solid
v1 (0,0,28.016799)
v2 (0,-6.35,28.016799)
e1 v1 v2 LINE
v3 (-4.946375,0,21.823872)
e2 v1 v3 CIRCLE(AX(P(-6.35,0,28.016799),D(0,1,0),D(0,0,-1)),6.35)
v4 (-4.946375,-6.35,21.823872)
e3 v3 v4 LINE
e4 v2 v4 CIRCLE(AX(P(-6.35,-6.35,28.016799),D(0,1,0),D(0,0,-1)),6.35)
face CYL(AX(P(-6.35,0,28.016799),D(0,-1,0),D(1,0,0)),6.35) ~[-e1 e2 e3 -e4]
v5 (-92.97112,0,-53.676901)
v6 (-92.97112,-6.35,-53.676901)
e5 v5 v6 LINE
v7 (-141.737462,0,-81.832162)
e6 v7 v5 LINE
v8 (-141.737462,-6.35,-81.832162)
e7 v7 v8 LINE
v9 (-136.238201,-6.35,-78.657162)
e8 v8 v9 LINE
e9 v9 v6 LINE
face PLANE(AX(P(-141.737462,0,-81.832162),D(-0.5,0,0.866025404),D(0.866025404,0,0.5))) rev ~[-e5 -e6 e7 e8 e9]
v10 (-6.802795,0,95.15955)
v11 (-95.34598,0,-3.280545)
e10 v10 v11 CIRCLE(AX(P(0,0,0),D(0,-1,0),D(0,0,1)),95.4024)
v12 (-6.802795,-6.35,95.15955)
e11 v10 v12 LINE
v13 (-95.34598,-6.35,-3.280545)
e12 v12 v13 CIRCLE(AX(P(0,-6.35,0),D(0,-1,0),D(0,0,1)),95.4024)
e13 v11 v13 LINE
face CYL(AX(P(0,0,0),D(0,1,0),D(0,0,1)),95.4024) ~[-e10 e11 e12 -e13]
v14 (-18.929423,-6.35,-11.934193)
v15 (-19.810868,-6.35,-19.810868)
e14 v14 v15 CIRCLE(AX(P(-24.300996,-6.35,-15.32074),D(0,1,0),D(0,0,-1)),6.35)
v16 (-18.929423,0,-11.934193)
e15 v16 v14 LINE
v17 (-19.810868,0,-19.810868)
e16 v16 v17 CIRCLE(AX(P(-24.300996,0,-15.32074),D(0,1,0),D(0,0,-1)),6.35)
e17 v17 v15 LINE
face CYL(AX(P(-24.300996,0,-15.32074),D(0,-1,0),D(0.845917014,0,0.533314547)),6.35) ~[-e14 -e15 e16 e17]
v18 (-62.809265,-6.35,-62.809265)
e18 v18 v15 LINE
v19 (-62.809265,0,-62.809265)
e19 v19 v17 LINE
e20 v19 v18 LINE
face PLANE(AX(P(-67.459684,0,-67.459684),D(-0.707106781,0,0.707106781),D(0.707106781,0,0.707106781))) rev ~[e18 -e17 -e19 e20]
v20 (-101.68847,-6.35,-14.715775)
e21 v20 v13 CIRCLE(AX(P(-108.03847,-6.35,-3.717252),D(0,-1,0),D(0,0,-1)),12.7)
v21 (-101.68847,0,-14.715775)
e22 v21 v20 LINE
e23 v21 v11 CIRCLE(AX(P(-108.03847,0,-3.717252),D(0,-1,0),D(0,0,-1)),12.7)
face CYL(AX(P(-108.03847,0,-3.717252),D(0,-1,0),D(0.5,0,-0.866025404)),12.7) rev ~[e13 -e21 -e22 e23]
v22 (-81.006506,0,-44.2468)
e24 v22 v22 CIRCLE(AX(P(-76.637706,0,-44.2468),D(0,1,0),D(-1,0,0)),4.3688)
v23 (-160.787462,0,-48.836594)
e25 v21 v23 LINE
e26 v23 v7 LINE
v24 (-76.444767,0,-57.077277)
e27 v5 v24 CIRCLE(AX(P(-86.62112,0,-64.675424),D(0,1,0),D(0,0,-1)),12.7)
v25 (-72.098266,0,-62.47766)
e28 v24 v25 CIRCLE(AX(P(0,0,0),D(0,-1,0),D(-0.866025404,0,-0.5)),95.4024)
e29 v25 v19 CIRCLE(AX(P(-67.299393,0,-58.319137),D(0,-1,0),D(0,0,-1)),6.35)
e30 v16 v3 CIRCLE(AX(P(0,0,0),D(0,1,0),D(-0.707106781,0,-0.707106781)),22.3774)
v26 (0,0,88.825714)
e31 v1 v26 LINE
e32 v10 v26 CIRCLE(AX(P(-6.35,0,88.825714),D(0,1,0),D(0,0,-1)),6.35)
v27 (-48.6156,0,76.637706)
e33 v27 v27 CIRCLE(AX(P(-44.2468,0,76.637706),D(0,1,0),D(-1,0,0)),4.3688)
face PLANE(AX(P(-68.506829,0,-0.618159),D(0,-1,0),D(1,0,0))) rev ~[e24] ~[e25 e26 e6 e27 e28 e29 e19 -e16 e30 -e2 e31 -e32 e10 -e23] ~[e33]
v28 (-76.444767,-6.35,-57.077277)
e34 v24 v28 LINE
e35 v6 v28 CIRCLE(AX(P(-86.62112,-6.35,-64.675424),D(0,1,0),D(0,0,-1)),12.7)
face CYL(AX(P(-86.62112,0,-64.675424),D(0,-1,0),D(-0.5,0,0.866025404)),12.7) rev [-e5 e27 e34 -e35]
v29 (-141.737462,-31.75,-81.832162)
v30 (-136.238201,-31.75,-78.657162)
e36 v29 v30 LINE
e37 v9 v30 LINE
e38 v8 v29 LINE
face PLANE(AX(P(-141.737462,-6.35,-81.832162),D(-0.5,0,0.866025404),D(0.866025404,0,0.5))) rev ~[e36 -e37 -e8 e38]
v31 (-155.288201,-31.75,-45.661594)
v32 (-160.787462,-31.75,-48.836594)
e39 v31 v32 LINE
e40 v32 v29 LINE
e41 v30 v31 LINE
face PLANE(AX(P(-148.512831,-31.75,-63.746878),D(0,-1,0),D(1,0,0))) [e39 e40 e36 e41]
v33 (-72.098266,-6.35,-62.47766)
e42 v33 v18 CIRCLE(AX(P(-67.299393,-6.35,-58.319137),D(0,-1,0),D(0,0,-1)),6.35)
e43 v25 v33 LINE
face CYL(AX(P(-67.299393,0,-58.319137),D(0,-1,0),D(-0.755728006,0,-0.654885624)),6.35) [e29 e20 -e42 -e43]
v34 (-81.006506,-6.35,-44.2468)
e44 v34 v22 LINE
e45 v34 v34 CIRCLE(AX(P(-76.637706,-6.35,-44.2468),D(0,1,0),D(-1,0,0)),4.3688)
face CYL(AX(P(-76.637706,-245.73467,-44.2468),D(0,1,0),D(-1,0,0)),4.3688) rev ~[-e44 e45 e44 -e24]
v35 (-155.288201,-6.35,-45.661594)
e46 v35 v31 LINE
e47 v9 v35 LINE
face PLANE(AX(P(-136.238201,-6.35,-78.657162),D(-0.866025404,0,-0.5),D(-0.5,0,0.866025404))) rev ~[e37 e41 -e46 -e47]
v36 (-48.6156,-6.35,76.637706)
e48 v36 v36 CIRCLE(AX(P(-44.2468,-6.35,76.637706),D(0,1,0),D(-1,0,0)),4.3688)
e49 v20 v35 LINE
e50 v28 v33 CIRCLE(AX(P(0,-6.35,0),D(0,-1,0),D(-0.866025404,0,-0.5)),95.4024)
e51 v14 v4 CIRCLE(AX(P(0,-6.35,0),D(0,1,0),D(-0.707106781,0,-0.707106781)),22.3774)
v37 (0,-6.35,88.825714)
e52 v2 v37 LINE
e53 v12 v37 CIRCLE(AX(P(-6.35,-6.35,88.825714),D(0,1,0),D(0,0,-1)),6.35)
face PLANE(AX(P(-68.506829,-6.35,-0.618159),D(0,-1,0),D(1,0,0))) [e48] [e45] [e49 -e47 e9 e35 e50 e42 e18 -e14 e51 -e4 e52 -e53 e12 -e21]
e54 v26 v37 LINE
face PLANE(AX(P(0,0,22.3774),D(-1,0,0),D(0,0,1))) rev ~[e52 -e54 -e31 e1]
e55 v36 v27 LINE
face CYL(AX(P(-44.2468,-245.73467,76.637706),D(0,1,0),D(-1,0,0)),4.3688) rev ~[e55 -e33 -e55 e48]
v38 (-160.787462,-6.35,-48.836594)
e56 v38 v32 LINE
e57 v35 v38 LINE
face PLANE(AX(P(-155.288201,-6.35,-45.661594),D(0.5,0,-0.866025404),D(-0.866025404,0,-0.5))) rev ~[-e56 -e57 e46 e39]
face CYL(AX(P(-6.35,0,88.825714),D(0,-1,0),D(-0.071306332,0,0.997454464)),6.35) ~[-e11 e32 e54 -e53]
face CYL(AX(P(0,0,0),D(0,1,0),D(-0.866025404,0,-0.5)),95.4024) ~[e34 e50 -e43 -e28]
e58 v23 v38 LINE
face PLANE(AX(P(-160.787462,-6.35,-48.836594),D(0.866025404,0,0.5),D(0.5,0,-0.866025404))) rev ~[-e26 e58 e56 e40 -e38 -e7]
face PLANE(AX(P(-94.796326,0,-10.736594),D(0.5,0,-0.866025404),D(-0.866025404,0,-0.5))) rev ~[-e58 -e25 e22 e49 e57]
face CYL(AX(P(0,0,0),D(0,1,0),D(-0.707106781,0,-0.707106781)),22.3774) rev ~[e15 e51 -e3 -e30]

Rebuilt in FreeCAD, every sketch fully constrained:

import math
import FreeCAD as App
import Part
import Sketcher
from FreeCAD import Vector
Q = App.Units.Quantity


def edges_at(feature, points):
    """Names of the edges that pass closest to the given points."""
    edges = feature.Shape.Edges
    near = lambda p: min(range(len(edges)), key=lambda i: edges[i].distToShape(Part.Vertex(*p))[0])
    return sorted({f"Edge{near(p) + 1}" for p in points})

doc = App.newDocument("Part")
body = doc.addObject("PartDesign::Body", "Body")

sketch1 = body.newObject("Sketcher::SketchObject", "Sketch")
sketch1.AttachmentSupport = (doc.getObject("XZ_Plane"), [""])
sketch1.MapMode = "FlatFace"
sketch1.addGeometry([
    Part.LineSegment(Vector(-142, -82, 0), Vector(-83, -48, 0)),
    Part.ArcOfCircle(Part.Circle(Vector(0, 0, 0), Vector(0, 0, 1), 95), math.radians(-150), math.radians(-135)),
    Part.LineSegment(Vector(-67, -67, 0), Vector(-16, -16, 0)),
    Part.ArcOfCircle(Part.Circle(Vector(0, 0, 0), Vector(0, 0, 1), 22), math.radians(90), math.radians(225)),
    Part.LineSegment(Vector(0, 22, 0), Vector(0, 95, 0)),
    Part.ArcOfCircle(Part.Circle(Vector(0, 0, 0), Vector(0, 0, 1), 95), math.radians(90), math.radians(186)),
    Part.LineSegment(Vector(-95, -11, 0), Vector(-161, -49, 0)),
    Part.LineSegment(Vector(-161, -49, 0), Vector(-142, -82, 0)),
], False)
sketch1.addConstraint([
    Sketcher.Constraint("Coincident", 0, 2, 1, 1),
    Sketcher.Constraint("Coincident", 1, 2, 2, 1),
    Sketcher.Constraint("Coincident", 2, 2, 3, 2),
    Sketcher.Constraint("Coincident", 3, 1, 4, 1),
    Sketcher.Constraint("Coincident", 4, 2, 5, 1),
    Sketcher.Constraint("Coincident", 5, 2, 6, 1),
    Sketcher.Constraint("Coincident", 6, 2, 7, 1),
    Sketcher.Constraint("Coincident", 7, 2, 0, 1),
    Sketcher.Constraint("Vertical", 4),
    Sketcher.Constraint("Coincident", 1, 3, -1, 1),
    Sketcher.Constraint("Coincident", 3, 3, -1, 1),
    Sketcher.Constraint("Coincident", 5, 3, -1, 1),
    Sketcher.Constraint("Equal", 1, 5),
    Sketcher.Constraint("PointOnObject", 3, 1, -2),
    Sketcher.Constraint("Parallel", 0, 6),
    Sketcher.Constraint("Perpendicular", 6, 7),
    Sketcher.Constraint("Distance", 6, Q("3 in")),
    Sketcher.Constraint("Angle", 0, Q("30 deg")),
    Sketcher.Constraint("Angle", 2, Q("45 deg")),
    Sketcher.Constraint("Radius", 1, Q("3.756 in")),
    Sketcher.Constraint("Radius", 3, Q("0.881 in")),
    Sketcher.Constraint("Distance", 7, Q("1.5 in")),
    Sketcher.Constraint("DistanceY", 0, 2, -1, 1, Q("1.878 in")),
    Sketcher.Constraint("DistanceX", 2, 2, -1, 1, 15.823211),
])
pad1 = body.newObject("PartDesign::Pad", "Pad")
pad1.Profile = sketch1
pad1.Length = Q("0.25 in")

sketch2 = body.newObject("Sketcher::SketchObject", "Sketch001")
sketch2.AttachmentSupport = (doc.getObject("XZ_Plane"), [""])
sketch2.MapMode = "FlatFace"
sketch2.AttachmentOffset = App.Placement(Vector(0, 0, 0.25 * 25.4), App.Rotation())
sketch2.addGeometry([
    Part.Circle(Vector(-44.2, 76.6, 0), Vector(0, 0, 1), 4.4),
    Part.Circle(Vector(-76.6, -44.2, 0), Vector(0, 0, 1), 4.4),
], False)
sketch2.addConstraint([
    Sketcher.Constraint("Equal", 0, 1),
    Sketcher.Constraint("Diameter", 0, Q("0.344 in")),
    Sketcher.Constraint("DistanceX", 0, 3, -1, 1, Q("1.742 in")),
    Sketcher.Constraint("DistanceY", 1, 3, -1, 1, Q("1.742 in")),
    Sketcher.Constraint("DistanceY", -1, 1, 0, 3, 76.637706),
    Sketcher.Constraint("DistanceX", 1, 3, -1, 1, 76.637706),
])
doc.recompute()
hole = body.newObject("PartDesign::Hole", "Hole")
hole.Profile = sketch2
hole.ThreadType = "None"
hole.Diameter = Q("0.344 in")
hole.DepthType = "ThroughAll"

sketch3 = body.newObject("Sketcher::SketchObject", "Sketch002")
sketch3.AttachmentSupport = (doc.getObject("XZ_Plane"), [""])
sketch3.MapMode = "FlatFace"
sketch3.AttachmentOffset = App.Placement(Vector(0, 0, 0.25 * 25.4), App.Rotation())
sketch3.addGeometry([
    Part.LineSegment(Vector(-136, -79, 0), Vector(-155, -46, 0)),
    Part.LineSegment(Vector(-155, -46, 0), Vector(-161, -49, 0)),
    Part.LineSegment(Vector(-161, -49, 0), Vector(-142, -82, 0)),
    Part.LineSegment(Vector(-142, -82, 0), Vector(-136, -79, 0)),
], False)
sketch3.addConstraint([
    Sketcher.Constraint("Coincident", 0, 2, 1, 1),
    Sketcher.Constraint("Coincident", 1, 2, 2, 1),
    Sketcher.Constraint("Coincident", 2, 2, 3, 1),
    Sketcher.Constraint("Coincident", 3, 2, 0, 1),
    Sketcher.Constraint("Perpendicular", 0, 1),
    Sketcher.Constraint("Perpendicular", 1, 2),
    Sketcher.Constraint("Perpendicular", 2, 3),
    Sketcher.Constraint("Angle", 0, Q("120 deg")),
    Sketcher.Constraint("Distance", 0, Q("1.5 in")),
    Sketcher.Constraint("Distance", 1, Q("0.25 in")),
    Sketcher.Constraint("DistanceX", 0, 2, -1, 1, 155.288201),
    Sketcher.Constraint("DistanceY", 2, 2, -1, 1, 81.832162),
])
pad2 = body.newObject("PartDesign::Pad", "Pad001")
pad2.Profile = sketch3
pad2.Length = Q("1 in")
doc.recompute()

fillet = body.newObject("PartDesign::Fillet", "Fillet")
fillet.Base = (pad2, edges_at(pad2, [(-82.621, -3.175, -47.701), (-94.796, -3.175, -10.737)]))
fillet.Radius = Q("0.5 in")
doc.recompute()

fillet2 = body.newObject("PartDesign::Fillet", "Fillet001")
fillet2.Base = (fillet, edges_at(fillet, [
    (-67.46, -3.175, -67.46),
    (-15.823, -3.175, -15.823),
    (0, -3.175, 22.377),
    (0, -3.175, 95.402),
]))
fillet2.Radius = Q("0.25 in")

doc.recompute()
